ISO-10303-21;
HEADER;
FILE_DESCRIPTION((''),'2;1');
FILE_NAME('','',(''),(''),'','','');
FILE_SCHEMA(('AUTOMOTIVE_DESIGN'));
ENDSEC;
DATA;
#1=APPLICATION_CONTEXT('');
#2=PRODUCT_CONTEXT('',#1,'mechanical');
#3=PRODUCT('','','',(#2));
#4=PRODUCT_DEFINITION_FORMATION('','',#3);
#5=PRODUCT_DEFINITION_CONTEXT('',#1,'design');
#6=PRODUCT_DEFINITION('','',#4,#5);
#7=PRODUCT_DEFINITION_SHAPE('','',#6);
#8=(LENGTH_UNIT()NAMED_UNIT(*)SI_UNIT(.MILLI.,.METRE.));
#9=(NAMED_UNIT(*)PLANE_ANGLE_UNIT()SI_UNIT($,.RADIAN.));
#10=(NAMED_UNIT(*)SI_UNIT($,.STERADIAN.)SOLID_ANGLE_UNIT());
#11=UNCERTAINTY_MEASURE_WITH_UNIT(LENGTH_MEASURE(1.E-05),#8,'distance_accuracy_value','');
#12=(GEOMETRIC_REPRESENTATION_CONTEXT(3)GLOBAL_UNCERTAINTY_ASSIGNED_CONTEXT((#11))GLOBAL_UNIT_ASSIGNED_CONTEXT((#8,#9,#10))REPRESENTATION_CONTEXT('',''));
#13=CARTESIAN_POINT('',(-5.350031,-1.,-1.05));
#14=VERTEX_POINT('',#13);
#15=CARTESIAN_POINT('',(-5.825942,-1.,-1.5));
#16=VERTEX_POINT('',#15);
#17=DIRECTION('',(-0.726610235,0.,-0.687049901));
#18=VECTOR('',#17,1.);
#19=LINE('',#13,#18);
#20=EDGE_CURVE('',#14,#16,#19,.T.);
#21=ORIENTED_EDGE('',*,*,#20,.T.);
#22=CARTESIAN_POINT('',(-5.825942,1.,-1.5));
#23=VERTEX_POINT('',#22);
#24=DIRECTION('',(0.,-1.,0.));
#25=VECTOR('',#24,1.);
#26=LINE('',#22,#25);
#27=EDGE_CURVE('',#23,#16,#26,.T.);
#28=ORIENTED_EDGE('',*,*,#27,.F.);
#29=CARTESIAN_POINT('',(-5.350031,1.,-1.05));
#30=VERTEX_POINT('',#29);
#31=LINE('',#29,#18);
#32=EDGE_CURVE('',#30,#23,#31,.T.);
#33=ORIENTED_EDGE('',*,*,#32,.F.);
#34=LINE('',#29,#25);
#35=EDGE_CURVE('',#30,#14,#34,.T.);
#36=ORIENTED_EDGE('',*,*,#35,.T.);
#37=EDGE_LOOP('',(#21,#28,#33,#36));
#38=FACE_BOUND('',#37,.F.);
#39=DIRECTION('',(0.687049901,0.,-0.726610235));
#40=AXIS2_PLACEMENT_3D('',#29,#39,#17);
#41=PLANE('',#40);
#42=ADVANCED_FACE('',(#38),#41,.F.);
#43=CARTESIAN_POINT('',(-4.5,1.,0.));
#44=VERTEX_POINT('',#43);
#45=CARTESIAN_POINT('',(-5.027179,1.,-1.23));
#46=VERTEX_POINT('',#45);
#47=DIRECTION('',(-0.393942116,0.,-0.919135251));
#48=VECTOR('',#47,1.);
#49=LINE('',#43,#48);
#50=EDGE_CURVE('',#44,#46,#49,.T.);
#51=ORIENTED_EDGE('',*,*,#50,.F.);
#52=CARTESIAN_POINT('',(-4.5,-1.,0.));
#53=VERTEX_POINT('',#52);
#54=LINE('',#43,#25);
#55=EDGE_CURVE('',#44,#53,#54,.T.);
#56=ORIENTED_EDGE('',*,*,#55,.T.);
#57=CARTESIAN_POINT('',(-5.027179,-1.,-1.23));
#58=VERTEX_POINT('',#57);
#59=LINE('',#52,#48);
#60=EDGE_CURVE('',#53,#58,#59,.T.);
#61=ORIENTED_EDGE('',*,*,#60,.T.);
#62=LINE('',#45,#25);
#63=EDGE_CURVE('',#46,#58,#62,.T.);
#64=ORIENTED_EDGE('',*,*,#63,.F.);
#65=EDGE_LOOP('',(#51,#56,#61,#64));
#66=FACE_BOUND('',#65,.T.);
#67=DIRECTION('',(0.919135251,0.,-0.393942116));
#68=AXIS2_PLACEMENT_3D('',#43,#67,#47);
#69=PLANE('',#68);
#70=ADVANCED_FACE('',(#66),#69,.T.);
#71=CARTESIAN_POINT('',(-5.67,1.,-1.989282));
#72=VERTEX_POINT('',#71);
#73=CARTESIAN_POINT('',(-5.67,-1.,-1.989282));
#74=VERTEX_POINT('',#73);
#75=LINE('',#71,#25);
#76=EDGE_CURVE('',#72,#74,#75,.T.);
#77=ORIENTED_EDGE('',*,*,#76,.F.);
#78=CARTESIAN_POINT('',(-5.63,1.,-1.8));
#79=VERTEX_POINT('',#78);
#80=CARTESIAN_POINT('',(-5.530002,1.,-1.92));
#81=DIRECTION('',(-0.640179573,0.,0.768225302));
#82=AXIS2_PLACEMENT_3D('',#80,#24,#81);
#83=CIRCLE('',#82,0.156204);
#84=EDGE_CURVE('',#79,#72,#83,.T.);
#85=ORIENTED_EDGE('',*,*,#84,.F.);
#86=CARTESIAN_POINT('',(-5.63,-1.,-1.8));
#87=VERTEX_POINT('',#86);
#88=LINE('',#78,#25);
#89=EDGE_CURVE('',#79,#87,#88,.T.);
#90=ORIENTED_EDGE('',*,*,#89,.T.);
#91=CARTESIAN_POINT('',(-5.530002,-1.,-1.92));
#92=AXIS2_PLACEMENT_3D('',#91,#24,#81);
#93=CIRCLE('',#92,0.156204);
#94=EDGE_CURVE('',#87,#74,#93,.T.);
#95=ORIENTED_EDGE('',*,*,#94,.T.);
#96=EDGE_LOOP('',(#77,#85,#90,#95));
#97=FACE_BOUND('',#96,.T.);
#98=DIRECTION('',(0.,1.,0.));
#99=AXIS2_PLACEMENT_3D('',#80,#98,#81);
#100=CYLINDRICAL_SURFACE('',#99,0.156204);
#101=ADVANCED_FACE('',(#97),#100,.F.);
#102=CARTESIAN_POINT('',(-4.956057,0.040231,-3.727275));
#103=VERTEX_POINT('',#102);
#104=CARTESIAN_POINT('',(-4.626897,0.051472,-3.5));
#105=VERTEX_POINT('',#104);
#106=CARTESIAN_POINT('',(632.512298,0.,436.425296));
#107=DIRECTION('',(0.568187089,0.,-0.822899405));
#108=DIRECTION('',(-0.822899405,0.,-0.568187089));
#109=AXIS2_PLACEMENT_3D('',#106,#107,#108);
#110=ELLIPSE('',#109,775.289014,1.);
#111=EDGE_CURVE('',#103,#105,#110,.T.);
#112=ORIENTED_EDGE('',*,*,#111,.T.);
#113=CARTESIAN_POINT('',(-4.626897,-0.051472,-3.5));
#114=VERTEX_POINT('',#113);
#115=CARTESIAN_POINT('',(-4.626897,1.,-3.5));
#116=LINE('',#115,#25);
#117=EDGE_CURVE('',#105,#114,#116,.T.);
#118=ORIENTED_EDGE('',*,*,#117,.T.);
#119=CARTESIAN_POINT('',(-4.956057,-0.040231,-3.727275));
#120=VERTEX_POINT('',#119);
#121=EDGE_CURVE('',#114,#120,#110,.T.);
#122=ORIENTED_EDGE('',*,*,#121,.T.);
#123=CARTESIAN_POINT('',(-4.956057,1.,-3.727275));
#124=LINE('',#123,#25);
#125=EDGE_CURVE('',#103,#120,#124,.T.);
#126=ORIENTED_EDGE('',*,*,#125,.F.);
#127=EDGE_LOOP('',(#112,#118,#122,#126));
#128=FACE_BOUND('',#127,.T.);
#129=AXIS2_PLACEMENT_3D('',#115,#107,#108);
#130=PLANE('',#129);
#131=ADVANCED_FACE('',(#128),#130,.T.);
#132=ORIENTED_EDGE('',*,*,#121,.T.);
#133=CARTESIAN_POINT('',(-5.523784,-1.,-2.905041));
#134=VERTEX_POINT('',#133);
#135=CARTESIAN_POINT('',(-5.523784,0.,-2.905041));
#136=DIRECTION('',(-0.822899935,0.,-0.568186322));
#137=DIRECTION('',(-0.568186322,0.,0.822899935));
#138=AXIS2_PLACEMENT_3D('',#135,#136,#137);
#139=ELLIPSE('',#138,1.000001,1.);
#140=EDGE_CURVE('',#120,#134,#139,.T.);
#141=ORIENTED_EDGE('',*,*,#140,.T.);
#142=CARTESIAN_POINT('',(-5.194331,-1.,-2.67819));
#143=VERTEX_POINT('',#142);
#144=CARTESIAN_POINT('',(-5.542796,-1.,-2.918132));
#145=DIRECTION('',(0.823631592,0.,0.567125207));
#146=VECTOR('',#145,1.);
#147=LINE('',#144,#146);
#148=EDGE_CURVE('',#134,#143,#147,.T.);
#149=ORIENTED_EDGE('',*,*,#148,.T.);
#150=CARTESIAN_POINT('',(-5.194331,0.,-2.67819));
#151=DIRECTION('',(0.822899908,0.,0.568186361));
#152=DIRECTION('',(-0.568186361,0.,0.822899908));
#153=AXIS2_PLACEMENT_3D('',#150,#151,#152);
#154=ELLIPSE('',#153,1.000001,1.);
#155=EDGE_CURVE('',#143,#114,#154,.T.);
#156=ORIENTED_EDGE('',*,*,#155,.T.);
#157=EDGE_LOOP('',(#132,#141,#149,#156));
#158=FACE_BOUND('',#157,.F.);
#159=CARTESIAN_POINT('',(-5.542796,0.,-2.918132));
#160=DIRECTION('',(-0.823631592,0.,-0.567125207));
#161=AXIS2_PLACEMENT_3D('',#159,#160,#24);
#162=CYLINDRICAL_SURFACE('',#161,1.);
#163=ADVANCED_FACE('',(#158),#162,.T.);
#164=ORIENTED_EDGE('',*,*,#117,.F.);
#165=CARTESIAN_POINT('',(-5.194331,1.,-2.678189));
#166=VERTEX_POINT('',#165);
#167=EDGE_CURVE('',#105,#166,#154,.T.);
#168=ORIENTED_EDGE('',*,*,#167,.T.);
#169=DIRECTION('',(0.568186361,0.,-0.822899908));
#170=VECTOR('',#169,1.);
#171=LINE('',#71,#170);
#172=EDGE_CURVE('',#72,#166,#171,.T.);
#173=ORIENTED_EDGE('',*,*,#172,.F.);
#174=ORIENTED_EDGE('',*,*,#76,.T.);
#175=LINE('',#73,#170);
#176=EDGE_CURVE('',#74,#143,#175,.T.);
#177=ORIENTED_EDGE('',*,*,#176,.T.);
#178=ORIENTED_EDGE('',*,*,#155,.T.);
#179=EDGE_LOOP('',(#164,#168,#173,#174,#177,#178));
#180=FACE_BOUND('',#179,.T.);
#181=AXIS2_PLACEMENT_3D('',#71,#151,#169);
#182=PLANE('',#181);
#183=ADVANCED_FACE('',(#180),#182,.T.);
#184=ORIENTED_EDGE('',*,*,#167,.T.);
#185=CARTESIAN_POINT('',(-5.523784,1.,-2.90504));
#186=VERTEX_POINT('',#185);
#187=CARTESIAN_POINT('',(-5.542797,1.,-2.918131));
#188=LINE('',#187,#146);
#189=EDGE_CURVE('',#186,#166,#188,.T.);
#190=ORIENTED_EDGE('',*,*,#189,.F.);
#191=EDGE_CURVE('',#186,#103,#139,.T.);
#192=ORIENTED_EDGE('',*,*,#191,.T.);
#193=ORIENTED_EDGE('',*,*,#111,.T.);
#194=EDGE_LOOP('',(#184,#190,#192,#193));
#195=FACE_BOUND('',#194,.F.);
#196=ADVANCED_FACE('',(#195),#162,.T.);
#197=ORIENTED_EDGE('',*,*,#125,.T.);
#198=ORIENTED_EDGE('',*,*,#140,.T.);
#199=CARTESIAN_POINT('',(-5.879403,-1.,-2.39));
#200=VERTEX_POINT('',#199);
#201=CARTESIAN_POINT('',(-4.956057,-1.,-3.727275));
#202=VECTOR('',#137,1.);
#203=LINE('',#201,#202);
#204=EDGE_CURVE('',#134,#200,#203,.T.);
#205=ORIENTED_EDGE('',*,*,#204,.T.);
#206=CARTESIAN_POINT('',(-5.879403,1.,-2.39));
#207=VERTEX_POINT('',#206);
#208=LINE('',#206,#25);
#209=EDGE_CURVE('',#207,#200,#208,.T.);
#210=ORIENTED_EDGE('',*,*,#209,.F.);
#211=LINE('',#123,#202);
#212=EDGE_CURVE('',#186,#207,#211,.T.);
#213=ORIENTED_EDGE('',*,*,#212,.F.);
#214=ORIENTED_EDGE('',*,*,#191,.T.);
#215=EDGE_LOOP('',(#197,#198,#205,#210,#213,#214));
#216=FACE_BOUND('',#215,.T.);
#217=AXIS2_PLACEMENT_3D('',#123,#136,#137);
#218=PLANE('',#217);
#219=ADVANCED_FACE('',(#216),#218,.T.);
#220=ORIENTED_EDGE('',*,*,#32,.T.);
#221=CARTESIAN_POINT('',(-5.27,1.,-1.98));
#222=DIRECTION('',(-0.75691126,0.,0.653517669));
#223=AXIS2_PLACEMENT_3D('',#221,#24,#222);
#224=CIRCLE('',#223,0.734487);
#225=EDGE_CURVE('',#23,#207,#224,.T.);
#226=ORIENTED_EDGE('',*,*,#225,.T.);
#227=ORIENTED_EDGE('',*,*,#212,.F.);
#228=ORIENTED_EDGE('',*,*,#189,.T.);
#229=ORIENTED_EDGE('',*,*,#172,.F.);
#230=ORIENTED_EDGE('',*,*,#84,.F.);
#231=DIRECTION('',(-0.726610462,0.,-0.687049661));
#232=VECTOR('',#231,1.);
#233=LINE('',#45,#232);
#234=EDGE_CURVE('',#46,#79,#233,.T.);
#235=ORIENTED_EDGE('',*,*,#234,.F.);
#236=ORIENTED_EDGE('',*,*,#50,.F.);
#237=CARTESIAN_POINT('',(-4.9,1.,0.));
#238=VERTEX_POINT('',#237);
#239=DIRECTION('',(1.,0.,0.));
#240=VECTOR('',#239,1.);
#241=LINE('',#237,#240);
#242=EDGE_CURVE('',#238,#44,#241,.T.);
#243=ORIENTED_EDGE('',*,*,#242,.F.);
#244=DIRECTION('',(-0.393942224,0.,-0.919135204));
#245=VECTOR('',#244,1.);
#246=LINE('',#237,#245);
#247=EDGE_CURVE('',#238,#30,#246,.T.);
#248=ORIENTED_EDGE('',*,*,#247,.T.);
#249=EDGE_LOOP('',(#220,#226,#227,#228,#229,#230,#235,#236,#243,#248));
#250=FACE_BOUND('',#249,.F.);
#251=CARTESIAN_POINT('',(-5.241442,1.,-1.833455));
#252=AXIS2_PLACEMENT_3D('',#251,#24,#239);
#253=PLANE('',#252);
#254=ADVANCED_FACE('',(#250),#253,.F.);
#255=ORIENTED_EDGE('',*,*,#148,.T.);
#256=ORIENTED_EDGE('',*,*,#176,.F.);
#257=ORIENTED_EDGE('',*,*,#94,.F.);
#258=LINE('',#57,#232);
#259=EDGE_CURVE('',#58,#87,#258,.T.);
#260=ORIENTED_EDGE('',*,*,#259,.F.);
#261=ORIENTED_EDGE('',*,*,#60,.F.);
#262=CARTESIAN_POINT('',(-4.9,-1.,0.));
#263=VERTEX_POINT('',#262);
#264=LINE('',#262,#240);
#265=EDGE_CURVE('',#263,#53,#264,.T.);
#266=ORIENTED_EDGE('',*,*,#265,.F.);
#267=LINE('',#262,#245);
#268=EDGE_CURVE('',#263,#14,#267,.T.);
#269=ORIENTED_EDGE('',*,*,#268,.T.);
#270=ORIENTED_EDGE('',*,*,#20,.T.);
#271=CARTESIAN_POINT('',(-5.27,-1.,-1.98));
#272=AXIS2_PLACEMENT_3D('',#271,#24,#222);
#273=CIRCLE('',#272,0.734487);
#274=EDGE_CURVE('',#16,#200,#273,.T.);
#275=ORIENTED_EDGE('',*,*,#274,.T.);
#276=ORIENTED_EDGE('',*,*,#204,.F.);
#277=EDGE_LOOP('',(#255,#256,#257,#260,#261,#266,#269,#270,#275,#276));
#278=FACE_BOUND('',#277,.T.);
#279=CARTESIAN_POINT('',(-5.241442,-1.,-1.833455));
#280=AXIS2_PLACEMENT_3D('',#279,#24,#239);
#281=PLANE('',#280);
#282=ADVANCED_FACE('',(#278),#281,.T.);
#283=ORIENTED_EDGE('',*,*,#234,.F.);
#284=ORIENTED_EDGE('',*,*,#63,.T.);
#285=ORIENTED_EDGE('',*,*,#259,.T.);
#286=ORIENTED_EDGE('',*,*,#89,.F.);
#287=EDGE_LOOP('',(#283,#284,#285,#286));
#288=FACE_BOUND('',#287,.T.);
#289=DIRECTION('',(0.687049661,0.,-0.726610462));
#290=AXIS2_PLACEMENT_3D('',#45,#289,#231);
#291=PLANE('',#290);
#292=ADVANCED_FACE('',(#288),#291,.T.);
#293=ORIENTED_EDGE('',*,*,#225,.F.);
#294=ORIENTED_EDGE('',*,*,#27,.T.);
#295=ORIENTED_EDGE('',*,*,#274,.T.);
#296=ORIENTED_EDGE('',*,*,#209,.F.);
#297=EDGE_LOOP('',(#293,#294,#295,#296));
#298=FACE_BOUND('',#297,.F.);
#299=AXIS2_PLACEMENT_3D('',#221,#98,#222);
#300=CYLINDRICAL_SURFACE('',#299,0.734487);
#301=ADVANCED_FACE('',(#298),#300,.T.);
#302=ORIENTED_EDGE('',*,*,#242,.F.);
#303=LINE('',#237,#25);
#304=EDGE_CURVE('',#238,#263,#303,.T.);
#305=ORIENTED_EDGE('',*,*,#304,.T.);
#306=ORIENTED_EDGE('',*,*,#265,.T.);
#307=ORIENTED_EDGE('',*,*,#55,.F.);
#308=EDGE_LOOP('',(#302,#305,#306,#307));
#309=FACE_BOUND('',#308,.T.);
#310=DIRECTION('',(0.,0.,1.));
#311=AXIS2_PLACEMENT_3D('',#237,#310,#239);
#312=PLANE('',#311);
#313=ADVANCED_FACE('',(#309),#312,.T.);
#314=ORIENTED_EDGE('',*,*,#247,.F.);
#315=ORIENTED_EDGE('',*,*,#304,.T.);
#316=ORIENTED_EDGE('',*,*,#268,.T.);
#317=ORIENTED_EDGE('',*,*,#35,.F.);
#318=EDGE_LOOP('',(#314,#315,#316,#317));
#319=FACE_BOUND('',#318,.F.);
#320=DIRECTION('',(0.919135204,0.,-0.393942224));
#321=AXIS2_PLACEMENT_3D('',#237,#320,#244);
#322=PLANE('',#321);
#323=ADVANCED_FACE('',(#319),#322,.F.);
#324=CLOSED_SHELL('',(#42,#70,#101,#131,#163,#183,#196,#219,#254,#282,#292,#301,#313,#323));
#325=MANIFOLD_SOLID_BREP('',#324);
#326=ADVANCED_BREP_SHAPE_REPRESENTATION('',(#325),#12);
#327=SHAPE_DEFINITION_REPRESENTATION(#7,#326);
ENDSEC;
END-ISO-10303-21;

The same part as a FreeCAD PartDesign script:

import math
import FreeCAD as App
import Part
import Sketcher
Q = App.Units.Quantity

doc = App.newDocument("Part")
body = doc.addObject("PartDesign::Body", "Body")

# Sketch on YZ plane
sketch1 = body.newObject("Sketcher::SketchObject", "Sketch")
sketch1.AttachmentSupport = (doc.getObject("YZ_Plane"), [""])
sketch1.MapMode = "FlatFace"
sketch1.addGeometry(Part.ArcOfCircle(Part.Circle(App.Vector(0, 1.01, 0), App.Vector(0, 0, 1), 1), math.radians(180), math.radians(360.000057)), False)
sketch1.addGeometry(Part.LineSegment(App.Vector(-1, 1.01, 0), App.Vector(-1, 0, 0)), False)
sketch1.addGeometry(Part.LineSegment(App.Vector(-1, 0, 0), App.Vector(1, 0, 0)), False)
sketch1.addGeometry(Part.LineSegment(App.Vector(1, 0, 0), App.Vector(1, 1.010001, 0)), False)
sketch1.addConstraint(Sketcher.Constraint("Tangent", 0, 1, 1, 1))
sketch1.addConstraint(Sketcher.Constraint("Coincident", 1, 2, 2, 1))
sketch1.addConstraint(Sketcher.Constraint("Coincident", 2, 2, 3, 1))
sketch1.addConstraint(Sketcher.Constraint("Tangent", 3, 2, 0, 2))
sketch1.addConstraint(Sketcher.Constraint("Vertical", 1))
sketch1.addConstraint(Sketcher.Constraint("Horizontal", 2))
sketch1.addConstraint(Sketcher.Constraint("Vertical", 3))
sketch1.addConstraint(Sketcher.Constraint("Symmetric", 1, 2, 2, 2, -1, 1))
sketch1.addConstraint(Sketcher.Constraint("Radius", 0, 1.0))
sketch1.addConstraint(Sketcher.Constraint("DistanceY", 1, 2, 1, 1, 1.01))
pad1 = body.newObject("PartDesign::Pad", "Pad")
pad1.Profile = sketch1
pad1.Length = 0.45
body2 = doc.addObject("PartDesign::Body", "Body001")
doc.recompute()

body.Placement = App.Placement(App.Vector(-4.97, 0, -3.75), App.Rotation(App.Vector(0, 1, 0), 325.45))
boolean = body2.newObject("PartDesign::Boolean", "Boolean")
boolean.Type = "Fuse"
boolean.addObjects([body])
body3 = doc.addObject("PartDesign::Body", "Body002")

# Sketch on XZ plane
sketch2 = body3.newObject("Sketcher::SketchObject", "Sketch001")
sketch2.AttachmentSupport = (doc.getObject("XZ_Plane002"), [""])
sketch2.MapMode = "FlatFace"
sketch2.addGeometry(Part.LineSegment(App.Vector(-4.9, 0, 0), App.Vector(-5.350031, -1.05, 0)), False)
sketch2.addGeometry(Part.LineSegment(App.Vector(-5.350031, -1.05, 0), App.Vector(-5.825942, -1.5, 0)), False)
sketch2.addGeometry(Part.ArcOfCircle(Part.Circle(App.Vector(-5.27, -1.98, 0), App.Vector(0, 0, 1), 0.734487), math.radians(139.192653), math.radians(213.932261)), False)
sketch2.addGeometry(Part.LineSegment(App.Vector(-5.879403, -2.39, 0), App.Vector(-4.956057, -3.727275, 0)), False)
sketch2.addGeometry(Part.LineSegment(App.Vector(-4.956057, -3.727275, 0), App.Vector(-4.626897, -3.5, 0)), False)
sketch2.addGeometry(Part.LineSegment(App.Vector(-4.626897, -3.5, 0), App.Vector(-5.67, -1.989282, 0)), False)
sketch2.addGeometry(Part.ArcOfCircle(Part.Circle(App.Vector(-5.530002, -1.92, 0), App.Vector(0, 0, 1), 0.156204), math.radians(129.805211), math.radians(206.32986)), False)
sketch2.addGeometry(Part.LineSegment(App.Vector(-5.63, -1.8, 0), App.Vector(-5.027179, -1.23, 0)), False)
sketch2.addGeometry(Part.LineSegment(App.Vector(-5.027179, -1.23, 0), App.Vector(-4.5, 0, 0)), False)
sketch2.addGeometry(Part.LineSegment(App.Vector(-4.5, 0, 0), App.Vector(-4.9, 0, 0)), False)
sketch2.addConstraint(Sketcher.Constraint("Coincident", 0, 2, 1, 1))
sketch2.addConstraint(Sketcher.Constraint("Coincident", 1, 2, 2, 1))
sketch2.addConstraint(Sketcher.Constraint("Coincident", 2, 2, 3, 1))
sketch2.addConstraint(Sketcher.Constraint("Coincident", 3, 2, 4, 1))
sketch2.addConstraint(Sketcher.Constraint("Coincident", 4, 2, 5, 1))
sketch2.addConstraint(Sketcher.Constraint("Coincident", 5, 2, 6, 2))
sketch2.addConstraint(Sketcher.Constraint("Coincident", 6, 1, 7, 1))
sketch2.addConstraint(Sketcher.Constraint("Coincident", 7, 2, 8, 1))
sketch2.addConstraint(Sketcher.Constraint("Coincident", 8, 2, 9, 1))
sketch2.addConstraint(Sketcher.Constraint("Coincident", 9, 2, 0, 1))
sketch2.addConstraint(Sketcher.Constraint("Horizontal", 9))
sketch2.addConstraint(Sketcher.Constraint("PointOnObject", 8, 2, -1))
sketch2.addConstraint(Sketcher.Constraint("Perpendicular", 3, 4))
sketch2.addConstraint(Sketcher.Constraint("Perpendicular", 4, 5))
sketch2.addConstraint(Sketcher.Constraint("Parallel", 1, 7))
sketch2.addConstraint(Sketcher.Constraint("Parallel", 0, 8))
sketch2.addConstraint(Sketcher.Constraint("DistanceX", 9, 2, 9, 1, 0.4))
sketch2.addConstraint(Sketcher.Constraint("Angle", 0, Q("-113.20002 deg")))
sketch2.addConstraint(Sketcher.Constraint("DistanceY", 4, 2, 1, 2, 2.0))
sketch2.addConstraint(Sketcher.Constraint("Distance", 4, 0.4))
sketch2.addConstraint(Sketcher.Constraint("DistanceY", 1, 2, -1, 1, 1.5))
sketch2.addConstraint(Sketcher.Constraint("DistanceY", 6, 1, -1, 1, 1.8))
sketch2.addConstraint(Sketcher.Constraint("DistanceX", 8, 2, -1, 1, 4.5))
sketch2.addConstraint(Sketcher.Constraint("DistanceX", 5, 2, 2, 3, 0.4))
sketch2.addConstraint(Sketcher.Constraint("DistanceX", 6, 1, 6, 3, 0.099998))
sketch2.addConstraint(Sketcher.Constraint("DistanceX", 2, 3, -1, 1, 5.27))
sketch2.addConstraint(Sketcher.Constraint("DistanceY", 2, 3, -1, 1, 1.98))
sketch2.addConstraint(Sketcher.Constraint("DistanceX", 6, 3, -1, 1, 5.530002))
sketch2.addConstraint(Sketcher.Constraint("DistanceY", 6, 3, -1, 1, 1.92))
sketch2.addConstraint(Sketcher.Constraint("DistanceY", 0, 2, -1, 1, 1.05))
sketch2.addConstraint(Sketcher.Constraint("DistanceY", 2, 2, -1, 1, 2.39))
sketch2.addConstraint(Sketcher.Constraint("DistanceY", 7, 2, -1, 1, 1.23))
pad2 = body3.newObject("PartDesign::Pad", "Pad001")
pad2.Profile = sketch2
pad2.Length = 2
body4 = doc.addObject("PartDesign::Body", "Body003")
doc.recompute()

body3.Placement = App.Placement(App.Vector(0, 1, 0), App.Rotation(App.Vector(0, 0, 1), 0))
boolean2 = body4.newObject("PartDesign::Boolean", "Boolean001")
boolean2.Type = "Fuse"
boolean2.addObjects([body3])
doc.recompute()

boolean3 = body4.newObject("PartDesign::Boolean", "Boolean002")
boolean3.Type = "Cut"
boolean3.addObjects([body2])

doc.recompute()
